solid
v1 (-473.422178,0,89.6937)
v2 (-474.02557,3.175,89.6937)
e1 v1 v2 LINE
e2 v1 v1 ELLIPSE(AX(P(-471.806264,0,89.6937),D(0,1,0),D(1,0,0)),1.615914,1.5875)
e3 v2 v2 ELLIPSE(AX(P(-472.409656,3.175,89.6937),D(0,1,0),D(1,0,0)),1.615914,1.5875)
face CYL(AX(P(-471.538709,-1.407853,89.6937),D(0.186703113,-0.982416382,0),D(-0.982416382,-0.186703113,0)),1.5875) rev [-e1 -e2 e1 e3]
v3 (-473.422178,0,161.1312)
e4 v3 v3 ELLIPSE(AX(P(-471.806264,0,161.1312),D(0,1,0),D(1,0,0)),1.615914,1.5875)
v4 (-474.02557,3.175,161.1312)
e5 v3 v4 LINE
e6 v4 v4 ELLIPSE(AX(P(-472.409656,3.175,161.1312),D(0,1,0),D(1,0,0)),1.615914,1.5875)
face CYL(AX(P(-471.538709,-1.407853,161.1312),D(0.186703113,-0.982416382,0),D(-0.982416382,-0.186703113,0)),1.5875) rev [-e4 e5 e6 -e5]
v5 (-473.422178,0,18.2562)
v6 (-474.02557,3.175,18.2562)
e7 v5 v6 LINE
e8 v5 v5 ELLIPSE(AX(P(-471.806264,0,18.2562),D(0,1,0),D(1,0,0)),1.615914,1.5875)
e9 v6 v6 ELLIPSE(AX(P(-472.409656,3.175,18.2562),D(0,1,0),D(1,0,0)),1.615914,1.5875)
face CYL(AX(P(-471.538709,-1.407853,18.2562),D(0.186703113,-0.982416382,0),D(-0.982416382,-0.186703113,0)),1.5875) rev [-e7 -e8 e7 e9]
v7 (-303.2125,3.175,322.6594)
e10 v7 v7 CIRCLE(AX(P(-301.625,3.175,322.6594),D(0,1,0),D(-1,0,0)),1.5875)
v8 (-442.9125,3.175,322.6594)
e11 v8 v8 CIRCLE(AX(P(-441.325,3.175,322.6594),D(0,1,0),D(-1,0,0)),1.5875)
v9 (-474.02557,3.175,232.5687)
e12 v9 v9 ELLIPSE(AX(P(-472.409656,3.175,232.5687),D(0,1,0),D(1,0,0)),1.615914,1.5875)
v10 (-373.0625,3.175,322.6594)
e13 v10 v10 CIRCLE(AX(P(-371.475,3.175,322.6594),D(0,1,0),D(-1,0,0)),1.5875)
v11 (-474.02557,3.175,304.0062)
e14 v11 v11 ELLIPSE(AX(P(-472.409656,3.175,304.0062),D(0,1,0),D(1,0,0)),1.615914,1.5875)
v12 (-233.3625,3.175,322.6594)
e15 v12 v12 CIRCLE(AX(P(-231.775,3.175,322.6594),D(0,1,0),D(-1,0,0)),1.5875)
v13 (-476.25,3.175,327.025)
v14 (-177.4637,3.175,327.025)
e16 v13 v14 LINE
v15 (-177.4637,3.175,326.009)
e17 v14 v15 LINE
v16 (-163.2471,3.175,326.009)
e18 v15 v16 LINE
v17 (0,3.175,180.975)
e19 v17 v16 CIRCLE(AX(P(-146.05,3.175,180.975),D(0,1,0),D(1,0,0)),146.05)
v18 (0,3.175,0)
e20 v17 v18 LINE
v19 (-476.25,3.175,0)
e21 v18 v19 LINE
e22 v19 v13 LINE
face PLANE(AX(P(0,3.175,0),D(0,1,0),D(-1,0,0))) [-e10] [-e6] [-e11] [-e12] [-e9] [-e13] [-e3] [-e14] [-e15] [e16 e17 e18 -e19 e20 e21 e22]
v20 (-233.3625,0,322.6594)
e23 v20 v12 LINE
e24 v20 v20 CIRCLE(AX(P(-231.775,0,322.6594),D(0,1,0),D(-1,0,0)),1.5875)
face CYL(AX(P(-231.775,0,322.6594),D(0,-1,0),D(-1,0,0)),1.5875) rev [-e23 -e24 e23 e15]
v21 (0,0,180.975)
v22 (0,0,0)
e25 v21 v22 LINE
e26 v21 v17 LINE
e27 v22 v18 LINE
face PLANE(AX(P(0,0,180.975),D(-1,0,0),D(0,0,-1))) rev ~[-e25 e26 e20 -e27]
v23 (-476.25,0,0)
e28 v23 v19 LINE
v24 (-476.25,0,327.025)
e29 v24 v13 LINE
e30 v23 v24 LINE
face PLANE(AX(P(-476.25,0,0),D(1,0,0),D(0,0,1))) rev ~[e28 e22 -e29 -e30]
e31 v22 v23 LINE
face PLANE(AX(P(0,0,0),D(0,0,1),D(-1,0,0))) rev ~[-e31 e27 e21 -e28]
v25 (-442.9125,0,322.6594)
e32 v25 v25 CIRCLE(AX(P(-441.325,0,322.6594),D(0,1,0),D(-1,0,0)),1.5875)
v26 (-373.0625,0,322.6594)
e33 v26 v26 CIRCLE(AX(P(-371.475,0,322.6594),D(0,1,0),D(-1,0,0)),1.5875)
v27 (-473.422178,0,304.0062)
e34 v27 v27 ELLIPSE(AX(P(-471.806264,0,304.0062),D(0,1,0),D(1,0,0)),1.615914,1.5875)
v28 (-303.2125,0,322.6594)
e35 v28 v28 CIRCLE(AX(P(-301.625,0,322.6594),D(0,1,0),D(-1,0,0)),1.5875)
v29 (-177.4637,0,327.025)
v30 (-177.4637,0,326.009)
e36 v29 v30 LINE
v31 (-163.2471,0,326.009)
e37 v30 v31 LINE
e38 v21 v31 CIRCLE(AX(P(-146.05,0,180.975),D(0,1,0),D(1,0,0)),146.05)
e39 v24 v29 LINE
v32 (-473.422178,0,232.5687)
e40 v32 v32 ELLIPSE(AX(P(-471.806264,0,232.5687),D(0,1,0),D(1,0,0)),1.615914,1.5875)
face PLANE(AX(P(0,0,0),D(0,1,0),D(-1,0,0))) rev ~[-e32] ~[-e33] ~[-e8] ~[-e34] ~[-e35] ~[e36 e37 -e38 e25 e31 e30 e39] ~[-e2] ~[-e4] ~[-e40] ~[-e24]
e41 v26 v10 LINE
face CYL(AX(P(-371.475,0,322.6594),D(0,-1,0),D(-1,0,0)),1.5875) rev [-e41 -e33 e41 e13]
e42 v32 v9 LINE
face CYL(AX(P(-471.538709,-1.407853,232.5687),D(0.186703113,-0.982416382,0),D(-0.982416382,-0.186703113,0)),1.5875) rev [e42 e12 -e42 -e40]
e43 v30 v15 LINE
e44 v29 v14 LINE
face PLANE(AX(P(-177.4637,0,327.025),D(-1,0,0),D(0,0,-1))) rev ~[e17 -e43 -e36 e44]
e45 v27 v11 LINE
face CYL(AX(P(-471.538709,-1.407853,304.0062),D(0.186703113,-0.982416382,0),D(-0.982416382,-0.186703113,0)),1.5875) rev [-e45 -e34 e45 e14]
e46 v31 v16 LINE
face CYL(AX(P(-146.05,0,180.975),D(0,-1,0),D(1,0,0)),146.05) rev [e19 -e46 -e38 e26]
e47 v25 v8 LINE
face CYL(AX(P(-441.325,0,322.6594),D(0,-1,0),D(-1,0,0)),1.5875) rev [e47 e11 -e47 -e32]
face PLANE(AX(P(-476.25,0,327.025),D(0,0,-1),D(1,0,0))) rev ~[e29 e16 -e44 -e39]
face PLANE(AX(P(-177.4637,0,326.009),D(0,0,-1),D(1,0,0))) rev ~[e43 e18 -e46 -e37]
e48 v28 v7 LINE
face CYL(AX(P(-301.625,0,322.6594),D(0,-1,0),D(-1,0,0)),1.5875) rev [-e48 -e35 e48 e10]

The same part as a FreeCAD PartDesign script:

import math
import FreeCAD as App
import Part
import Sketcher
Q = App.Units.Quantity

doc = App.newDocument("Part")
params = doc.addObject("Spreadsheet::Sheet", "Params")
for row, (alias, value) in enumerate([
    ("sketch1_radius", "5.75 in"),
    ("sketch1_height", "0.04 in"),
    ("sketch1_height2", "7.125 in"),
    ("sketch1_height3", "12.875 in"),
    ("sketch1_diameter", "0.125 in"),
    ("pad1_length", "0.125 in"),
    ("sketch2_diameter", "0.125 in"),
], start=1):
    params.set(f"A{row}", alias)
    params.set(f"B{row}", "=" + value)
    params.setAlias(f"B{row}", alias)

body = doc.addObject("PartDesign::Body", "Body")

sketch1 = body.newObject("Sketcher::SketchObject", "Sketch")
sketch1.AttachmentSupport = (doc.getObject("XZ_Plane"), [""])
sketch1.MapMode = "FlatFace"
sketch1.addGeometry([
    Part.ArcOfCircle(Part.Circle(App.Vector(-146.1, 181, 0), App.Vector(0, 0, 1), 146.1), math.radians(97), math.radians(360)),
    Part.LineSegment(App.Vector(0, 181, 0), App.Vector(0, 0, 0)),
    Part.LineSegment(App.Vector(0, 0, 0), App.Vector(-476.2, 0, 0)),
    Part.LineSegment(App.Vector(-476.2, 0, 0), App.Vector(-476.2, 327, 0)),
    Part.LineSegment(App.Vector(-476.2, 327, 0), App.Vector(-177.5, 327, 0)),
    Part.LineSegment(App.Vector(-177.5, 327, 0), App.Vector(-177.5, 326, 0)),
    Part.LineSegment(App.Vector(-177.5, 326, 0), App.Vector(-163.2, 326, 0)),
    Part.Circle(App.Vector(-231.8, 322.7, 0), App.Vector(0, 0, 1), 1.6),
    Part.Circle(App.Vector(-301.6, 322.7, 0), App.Vector(0, 0, 1), 1.6),
    Part.Circle(App.Vector(-371.5, 322.7, 0), App.Vector(0, 0, 1), 1.6),
    Part.Circle(App.Vector(-441.3, 322.7, 0), App.Vector(0, 0, 1), 1.6),
], False)
sketch1.addConstraint([
    Sketcher.Constraint("Tangent", 0, 2, 1, 1),
    Sketcher.Constraint("Coincident", 1, 2, 2, 1),
    Sketcher.Constraint("Coincident", 2, 2, 3, 1),
    Sketcher.Constraint("Coincident", 3, 2, 4, 1),
    Sketcher.Constraint("Coincident", 4, 2, 5, 1),
    Sketcher.Constraint("Coincident", 5, 2, 6, 1),
    Sketcher.Constraint("Coincident", 6, 2, 0, 1),
    Sketcher.Constraint("Vertical", 1),
    Sketcher.Constraint("Horizontal", 2),
    Sketcher.Constraint("Vertical", 3),
    Sketcher.Constraint("Horizontal", 4),
    Sketcher.Constraint("Vertical", 5),
    Sketcher.Constraint("Horizontal", 6),
    Sketcher.Constraint("Coincident", 1, 2, -1, 1),
    Sketcher.Constraint("Equal", 7, 8),
    Sketcher.Constraint("Equal", 8, 9),
    Sketcher.Constraint("Equal", 9, 10),
    Sketcher.Constraint("Horizontal", 7, 3, 8, 3),
    Sketcher.Constraint("Horizontal", 8, 3, 9, 3),
    Sketcher.Constraint("Horizontal", 9, 3, 10, 3),
    Sketcher.Constraint("Radius", 0, Q("5.75 in")),
    Sketcher.Constraint("DistanceX", 2, 2, 0, 3, Q("13 in")),
    Sketcher.Constraint("DistanceY", 5, 2, 5, 1, Q("0.04 in")),
    Sketcher.Constraint("DistanceY", 1, 2, 1, 1, Q("7.125 in")),
    Sketcher.Constraint("DistanceY", 3, 1, 3, 2, Q("12.875 in")),
    Sketcher.Constraint("Diameter", 7, Q("0.125 in")),
    Sketcher.Constraint("DistanceX", 9, 3, 7, 3, Q("5.5 in")),
    Sketcher.Constraint("DistanceX", 10, 3, 8, 3, Q("5.5 in")),
    Sketcher.Constraint("DistanceX", 8, 3, 7, 3, Q("2.75 in")),
    Sketcher.Constraint("DistanceX", 6, 1, 6, 2, Q("0.5597 in")),
    Sketcher.Constraint("DistanceX", 7, 3, -1, 1, Q("9.125 in")),
    Sketcher.Constraint("DistanceY", -1, 1, 7, 3, Q("12.703126 in")),
])
sketch1.setExpression("Constraints[20]", "Params.sketch1_radius")
sketch1.setExpression("Constraints[22]", "Params.sketch1_height")
sketch1.setExpression("Constraints[23]", "Params.sketch1_height2")
sketch1.setExpression("Constraints[24]", "Params.sketch1_height3")
sketch1.setExpression("Constraints[25]", "Params.sketch1_diameter")
pad1 = body.newObject("PartDesign::Pad", "Pad")
pad1.Profile = sketch1
pad1.setExpression("Length", "Params.pad1_length")
pad1.Reversed = True

sketch2 = body.newObject("Sketcher::SketchObject", "Sketch001")
sketch2.Placement = App.Placement(App.Vector(-464.1307, 0, 8.7312), App.Rotation(App.Vector(-0.982416382, -0.186703113, 0), App.Vector(0, 0, 1), App.Vector(-0.186703113, 0.982416382, 0), "ZXY"))
sketch2.addGeometry([
    Part.Circle(App.Vector(7.5, 223.8, 0), App.Vector(0, 0, 1), 1.6),
    Part.Circle(App.Vector(7.5, 81, 0), App.Vector(0, 0, 1), 1.6),
    Part.Circle(App.Vector(7.5, 9.5, 0), App.Vector(0, 0, 1), 1.6),
    Part.Circle(App.Vector(7.5, 152.4, 0), App.Vector(0, 0, 1), 1.6),
    Part.Circle(App.Vector(7.5, 295.3, 0), App.Vector(0, 0, 1), 1.6),
], False)
sketch2.addConstraint([
    Sketcher.Constraint("Equal", 0, 1),
    Sketcher.Constraint("Equal", 1, 2),
    Sketcher.Constraint("Equal", 2, 3),
    Sketcher.Constraint("Equal", 3, 4),
    Sketcher.Constraint("Vertical", 0, 3, 1, 3),
    Sketcher.Constraint("Vertical", 1, 3, 2, 3),
    Sketcher.Constraint("Vertical", 2, 3, 3, 3),
    Sketcher.Constraint("Vertical", 3, 3, 4, 3),
    Sketcher.Constraint("Diameter", 0, Q("0.125 in")),
    Sketcher.Constraint("DistanceY", -1, 1, 3, 3, Q("6 in")),
    Sketcher.Constraint("DistanceY", 2, 3, 4, 3, Q("11.25 in")),
    Sketcher.Constraint("DistanceX", -1, 1, 0, 3, Q("0.296874 in")),
    Sketcher.Constraint("DistanceY", -1, 1, 0, 3, Q("8.8125 in")),
    Sketcher.Constraint("DistanceY", -1, 1, 1, 3, Q("3.1875 in")),
    Sketcher.Constraint("DistanceY", -1, 1, 2, 3, Q("0.375 in")),
])
sketch2.setExpression("Constraints[8]", "Params.sketch2_diameter")
pocket1 = body.newObject("PartDesign::Pocket", "Pocket")
pocket1.Profile = sketch2
pocket1.Type = "ThroughAll"
pocket1.Reversed = True

doc.recompute()
